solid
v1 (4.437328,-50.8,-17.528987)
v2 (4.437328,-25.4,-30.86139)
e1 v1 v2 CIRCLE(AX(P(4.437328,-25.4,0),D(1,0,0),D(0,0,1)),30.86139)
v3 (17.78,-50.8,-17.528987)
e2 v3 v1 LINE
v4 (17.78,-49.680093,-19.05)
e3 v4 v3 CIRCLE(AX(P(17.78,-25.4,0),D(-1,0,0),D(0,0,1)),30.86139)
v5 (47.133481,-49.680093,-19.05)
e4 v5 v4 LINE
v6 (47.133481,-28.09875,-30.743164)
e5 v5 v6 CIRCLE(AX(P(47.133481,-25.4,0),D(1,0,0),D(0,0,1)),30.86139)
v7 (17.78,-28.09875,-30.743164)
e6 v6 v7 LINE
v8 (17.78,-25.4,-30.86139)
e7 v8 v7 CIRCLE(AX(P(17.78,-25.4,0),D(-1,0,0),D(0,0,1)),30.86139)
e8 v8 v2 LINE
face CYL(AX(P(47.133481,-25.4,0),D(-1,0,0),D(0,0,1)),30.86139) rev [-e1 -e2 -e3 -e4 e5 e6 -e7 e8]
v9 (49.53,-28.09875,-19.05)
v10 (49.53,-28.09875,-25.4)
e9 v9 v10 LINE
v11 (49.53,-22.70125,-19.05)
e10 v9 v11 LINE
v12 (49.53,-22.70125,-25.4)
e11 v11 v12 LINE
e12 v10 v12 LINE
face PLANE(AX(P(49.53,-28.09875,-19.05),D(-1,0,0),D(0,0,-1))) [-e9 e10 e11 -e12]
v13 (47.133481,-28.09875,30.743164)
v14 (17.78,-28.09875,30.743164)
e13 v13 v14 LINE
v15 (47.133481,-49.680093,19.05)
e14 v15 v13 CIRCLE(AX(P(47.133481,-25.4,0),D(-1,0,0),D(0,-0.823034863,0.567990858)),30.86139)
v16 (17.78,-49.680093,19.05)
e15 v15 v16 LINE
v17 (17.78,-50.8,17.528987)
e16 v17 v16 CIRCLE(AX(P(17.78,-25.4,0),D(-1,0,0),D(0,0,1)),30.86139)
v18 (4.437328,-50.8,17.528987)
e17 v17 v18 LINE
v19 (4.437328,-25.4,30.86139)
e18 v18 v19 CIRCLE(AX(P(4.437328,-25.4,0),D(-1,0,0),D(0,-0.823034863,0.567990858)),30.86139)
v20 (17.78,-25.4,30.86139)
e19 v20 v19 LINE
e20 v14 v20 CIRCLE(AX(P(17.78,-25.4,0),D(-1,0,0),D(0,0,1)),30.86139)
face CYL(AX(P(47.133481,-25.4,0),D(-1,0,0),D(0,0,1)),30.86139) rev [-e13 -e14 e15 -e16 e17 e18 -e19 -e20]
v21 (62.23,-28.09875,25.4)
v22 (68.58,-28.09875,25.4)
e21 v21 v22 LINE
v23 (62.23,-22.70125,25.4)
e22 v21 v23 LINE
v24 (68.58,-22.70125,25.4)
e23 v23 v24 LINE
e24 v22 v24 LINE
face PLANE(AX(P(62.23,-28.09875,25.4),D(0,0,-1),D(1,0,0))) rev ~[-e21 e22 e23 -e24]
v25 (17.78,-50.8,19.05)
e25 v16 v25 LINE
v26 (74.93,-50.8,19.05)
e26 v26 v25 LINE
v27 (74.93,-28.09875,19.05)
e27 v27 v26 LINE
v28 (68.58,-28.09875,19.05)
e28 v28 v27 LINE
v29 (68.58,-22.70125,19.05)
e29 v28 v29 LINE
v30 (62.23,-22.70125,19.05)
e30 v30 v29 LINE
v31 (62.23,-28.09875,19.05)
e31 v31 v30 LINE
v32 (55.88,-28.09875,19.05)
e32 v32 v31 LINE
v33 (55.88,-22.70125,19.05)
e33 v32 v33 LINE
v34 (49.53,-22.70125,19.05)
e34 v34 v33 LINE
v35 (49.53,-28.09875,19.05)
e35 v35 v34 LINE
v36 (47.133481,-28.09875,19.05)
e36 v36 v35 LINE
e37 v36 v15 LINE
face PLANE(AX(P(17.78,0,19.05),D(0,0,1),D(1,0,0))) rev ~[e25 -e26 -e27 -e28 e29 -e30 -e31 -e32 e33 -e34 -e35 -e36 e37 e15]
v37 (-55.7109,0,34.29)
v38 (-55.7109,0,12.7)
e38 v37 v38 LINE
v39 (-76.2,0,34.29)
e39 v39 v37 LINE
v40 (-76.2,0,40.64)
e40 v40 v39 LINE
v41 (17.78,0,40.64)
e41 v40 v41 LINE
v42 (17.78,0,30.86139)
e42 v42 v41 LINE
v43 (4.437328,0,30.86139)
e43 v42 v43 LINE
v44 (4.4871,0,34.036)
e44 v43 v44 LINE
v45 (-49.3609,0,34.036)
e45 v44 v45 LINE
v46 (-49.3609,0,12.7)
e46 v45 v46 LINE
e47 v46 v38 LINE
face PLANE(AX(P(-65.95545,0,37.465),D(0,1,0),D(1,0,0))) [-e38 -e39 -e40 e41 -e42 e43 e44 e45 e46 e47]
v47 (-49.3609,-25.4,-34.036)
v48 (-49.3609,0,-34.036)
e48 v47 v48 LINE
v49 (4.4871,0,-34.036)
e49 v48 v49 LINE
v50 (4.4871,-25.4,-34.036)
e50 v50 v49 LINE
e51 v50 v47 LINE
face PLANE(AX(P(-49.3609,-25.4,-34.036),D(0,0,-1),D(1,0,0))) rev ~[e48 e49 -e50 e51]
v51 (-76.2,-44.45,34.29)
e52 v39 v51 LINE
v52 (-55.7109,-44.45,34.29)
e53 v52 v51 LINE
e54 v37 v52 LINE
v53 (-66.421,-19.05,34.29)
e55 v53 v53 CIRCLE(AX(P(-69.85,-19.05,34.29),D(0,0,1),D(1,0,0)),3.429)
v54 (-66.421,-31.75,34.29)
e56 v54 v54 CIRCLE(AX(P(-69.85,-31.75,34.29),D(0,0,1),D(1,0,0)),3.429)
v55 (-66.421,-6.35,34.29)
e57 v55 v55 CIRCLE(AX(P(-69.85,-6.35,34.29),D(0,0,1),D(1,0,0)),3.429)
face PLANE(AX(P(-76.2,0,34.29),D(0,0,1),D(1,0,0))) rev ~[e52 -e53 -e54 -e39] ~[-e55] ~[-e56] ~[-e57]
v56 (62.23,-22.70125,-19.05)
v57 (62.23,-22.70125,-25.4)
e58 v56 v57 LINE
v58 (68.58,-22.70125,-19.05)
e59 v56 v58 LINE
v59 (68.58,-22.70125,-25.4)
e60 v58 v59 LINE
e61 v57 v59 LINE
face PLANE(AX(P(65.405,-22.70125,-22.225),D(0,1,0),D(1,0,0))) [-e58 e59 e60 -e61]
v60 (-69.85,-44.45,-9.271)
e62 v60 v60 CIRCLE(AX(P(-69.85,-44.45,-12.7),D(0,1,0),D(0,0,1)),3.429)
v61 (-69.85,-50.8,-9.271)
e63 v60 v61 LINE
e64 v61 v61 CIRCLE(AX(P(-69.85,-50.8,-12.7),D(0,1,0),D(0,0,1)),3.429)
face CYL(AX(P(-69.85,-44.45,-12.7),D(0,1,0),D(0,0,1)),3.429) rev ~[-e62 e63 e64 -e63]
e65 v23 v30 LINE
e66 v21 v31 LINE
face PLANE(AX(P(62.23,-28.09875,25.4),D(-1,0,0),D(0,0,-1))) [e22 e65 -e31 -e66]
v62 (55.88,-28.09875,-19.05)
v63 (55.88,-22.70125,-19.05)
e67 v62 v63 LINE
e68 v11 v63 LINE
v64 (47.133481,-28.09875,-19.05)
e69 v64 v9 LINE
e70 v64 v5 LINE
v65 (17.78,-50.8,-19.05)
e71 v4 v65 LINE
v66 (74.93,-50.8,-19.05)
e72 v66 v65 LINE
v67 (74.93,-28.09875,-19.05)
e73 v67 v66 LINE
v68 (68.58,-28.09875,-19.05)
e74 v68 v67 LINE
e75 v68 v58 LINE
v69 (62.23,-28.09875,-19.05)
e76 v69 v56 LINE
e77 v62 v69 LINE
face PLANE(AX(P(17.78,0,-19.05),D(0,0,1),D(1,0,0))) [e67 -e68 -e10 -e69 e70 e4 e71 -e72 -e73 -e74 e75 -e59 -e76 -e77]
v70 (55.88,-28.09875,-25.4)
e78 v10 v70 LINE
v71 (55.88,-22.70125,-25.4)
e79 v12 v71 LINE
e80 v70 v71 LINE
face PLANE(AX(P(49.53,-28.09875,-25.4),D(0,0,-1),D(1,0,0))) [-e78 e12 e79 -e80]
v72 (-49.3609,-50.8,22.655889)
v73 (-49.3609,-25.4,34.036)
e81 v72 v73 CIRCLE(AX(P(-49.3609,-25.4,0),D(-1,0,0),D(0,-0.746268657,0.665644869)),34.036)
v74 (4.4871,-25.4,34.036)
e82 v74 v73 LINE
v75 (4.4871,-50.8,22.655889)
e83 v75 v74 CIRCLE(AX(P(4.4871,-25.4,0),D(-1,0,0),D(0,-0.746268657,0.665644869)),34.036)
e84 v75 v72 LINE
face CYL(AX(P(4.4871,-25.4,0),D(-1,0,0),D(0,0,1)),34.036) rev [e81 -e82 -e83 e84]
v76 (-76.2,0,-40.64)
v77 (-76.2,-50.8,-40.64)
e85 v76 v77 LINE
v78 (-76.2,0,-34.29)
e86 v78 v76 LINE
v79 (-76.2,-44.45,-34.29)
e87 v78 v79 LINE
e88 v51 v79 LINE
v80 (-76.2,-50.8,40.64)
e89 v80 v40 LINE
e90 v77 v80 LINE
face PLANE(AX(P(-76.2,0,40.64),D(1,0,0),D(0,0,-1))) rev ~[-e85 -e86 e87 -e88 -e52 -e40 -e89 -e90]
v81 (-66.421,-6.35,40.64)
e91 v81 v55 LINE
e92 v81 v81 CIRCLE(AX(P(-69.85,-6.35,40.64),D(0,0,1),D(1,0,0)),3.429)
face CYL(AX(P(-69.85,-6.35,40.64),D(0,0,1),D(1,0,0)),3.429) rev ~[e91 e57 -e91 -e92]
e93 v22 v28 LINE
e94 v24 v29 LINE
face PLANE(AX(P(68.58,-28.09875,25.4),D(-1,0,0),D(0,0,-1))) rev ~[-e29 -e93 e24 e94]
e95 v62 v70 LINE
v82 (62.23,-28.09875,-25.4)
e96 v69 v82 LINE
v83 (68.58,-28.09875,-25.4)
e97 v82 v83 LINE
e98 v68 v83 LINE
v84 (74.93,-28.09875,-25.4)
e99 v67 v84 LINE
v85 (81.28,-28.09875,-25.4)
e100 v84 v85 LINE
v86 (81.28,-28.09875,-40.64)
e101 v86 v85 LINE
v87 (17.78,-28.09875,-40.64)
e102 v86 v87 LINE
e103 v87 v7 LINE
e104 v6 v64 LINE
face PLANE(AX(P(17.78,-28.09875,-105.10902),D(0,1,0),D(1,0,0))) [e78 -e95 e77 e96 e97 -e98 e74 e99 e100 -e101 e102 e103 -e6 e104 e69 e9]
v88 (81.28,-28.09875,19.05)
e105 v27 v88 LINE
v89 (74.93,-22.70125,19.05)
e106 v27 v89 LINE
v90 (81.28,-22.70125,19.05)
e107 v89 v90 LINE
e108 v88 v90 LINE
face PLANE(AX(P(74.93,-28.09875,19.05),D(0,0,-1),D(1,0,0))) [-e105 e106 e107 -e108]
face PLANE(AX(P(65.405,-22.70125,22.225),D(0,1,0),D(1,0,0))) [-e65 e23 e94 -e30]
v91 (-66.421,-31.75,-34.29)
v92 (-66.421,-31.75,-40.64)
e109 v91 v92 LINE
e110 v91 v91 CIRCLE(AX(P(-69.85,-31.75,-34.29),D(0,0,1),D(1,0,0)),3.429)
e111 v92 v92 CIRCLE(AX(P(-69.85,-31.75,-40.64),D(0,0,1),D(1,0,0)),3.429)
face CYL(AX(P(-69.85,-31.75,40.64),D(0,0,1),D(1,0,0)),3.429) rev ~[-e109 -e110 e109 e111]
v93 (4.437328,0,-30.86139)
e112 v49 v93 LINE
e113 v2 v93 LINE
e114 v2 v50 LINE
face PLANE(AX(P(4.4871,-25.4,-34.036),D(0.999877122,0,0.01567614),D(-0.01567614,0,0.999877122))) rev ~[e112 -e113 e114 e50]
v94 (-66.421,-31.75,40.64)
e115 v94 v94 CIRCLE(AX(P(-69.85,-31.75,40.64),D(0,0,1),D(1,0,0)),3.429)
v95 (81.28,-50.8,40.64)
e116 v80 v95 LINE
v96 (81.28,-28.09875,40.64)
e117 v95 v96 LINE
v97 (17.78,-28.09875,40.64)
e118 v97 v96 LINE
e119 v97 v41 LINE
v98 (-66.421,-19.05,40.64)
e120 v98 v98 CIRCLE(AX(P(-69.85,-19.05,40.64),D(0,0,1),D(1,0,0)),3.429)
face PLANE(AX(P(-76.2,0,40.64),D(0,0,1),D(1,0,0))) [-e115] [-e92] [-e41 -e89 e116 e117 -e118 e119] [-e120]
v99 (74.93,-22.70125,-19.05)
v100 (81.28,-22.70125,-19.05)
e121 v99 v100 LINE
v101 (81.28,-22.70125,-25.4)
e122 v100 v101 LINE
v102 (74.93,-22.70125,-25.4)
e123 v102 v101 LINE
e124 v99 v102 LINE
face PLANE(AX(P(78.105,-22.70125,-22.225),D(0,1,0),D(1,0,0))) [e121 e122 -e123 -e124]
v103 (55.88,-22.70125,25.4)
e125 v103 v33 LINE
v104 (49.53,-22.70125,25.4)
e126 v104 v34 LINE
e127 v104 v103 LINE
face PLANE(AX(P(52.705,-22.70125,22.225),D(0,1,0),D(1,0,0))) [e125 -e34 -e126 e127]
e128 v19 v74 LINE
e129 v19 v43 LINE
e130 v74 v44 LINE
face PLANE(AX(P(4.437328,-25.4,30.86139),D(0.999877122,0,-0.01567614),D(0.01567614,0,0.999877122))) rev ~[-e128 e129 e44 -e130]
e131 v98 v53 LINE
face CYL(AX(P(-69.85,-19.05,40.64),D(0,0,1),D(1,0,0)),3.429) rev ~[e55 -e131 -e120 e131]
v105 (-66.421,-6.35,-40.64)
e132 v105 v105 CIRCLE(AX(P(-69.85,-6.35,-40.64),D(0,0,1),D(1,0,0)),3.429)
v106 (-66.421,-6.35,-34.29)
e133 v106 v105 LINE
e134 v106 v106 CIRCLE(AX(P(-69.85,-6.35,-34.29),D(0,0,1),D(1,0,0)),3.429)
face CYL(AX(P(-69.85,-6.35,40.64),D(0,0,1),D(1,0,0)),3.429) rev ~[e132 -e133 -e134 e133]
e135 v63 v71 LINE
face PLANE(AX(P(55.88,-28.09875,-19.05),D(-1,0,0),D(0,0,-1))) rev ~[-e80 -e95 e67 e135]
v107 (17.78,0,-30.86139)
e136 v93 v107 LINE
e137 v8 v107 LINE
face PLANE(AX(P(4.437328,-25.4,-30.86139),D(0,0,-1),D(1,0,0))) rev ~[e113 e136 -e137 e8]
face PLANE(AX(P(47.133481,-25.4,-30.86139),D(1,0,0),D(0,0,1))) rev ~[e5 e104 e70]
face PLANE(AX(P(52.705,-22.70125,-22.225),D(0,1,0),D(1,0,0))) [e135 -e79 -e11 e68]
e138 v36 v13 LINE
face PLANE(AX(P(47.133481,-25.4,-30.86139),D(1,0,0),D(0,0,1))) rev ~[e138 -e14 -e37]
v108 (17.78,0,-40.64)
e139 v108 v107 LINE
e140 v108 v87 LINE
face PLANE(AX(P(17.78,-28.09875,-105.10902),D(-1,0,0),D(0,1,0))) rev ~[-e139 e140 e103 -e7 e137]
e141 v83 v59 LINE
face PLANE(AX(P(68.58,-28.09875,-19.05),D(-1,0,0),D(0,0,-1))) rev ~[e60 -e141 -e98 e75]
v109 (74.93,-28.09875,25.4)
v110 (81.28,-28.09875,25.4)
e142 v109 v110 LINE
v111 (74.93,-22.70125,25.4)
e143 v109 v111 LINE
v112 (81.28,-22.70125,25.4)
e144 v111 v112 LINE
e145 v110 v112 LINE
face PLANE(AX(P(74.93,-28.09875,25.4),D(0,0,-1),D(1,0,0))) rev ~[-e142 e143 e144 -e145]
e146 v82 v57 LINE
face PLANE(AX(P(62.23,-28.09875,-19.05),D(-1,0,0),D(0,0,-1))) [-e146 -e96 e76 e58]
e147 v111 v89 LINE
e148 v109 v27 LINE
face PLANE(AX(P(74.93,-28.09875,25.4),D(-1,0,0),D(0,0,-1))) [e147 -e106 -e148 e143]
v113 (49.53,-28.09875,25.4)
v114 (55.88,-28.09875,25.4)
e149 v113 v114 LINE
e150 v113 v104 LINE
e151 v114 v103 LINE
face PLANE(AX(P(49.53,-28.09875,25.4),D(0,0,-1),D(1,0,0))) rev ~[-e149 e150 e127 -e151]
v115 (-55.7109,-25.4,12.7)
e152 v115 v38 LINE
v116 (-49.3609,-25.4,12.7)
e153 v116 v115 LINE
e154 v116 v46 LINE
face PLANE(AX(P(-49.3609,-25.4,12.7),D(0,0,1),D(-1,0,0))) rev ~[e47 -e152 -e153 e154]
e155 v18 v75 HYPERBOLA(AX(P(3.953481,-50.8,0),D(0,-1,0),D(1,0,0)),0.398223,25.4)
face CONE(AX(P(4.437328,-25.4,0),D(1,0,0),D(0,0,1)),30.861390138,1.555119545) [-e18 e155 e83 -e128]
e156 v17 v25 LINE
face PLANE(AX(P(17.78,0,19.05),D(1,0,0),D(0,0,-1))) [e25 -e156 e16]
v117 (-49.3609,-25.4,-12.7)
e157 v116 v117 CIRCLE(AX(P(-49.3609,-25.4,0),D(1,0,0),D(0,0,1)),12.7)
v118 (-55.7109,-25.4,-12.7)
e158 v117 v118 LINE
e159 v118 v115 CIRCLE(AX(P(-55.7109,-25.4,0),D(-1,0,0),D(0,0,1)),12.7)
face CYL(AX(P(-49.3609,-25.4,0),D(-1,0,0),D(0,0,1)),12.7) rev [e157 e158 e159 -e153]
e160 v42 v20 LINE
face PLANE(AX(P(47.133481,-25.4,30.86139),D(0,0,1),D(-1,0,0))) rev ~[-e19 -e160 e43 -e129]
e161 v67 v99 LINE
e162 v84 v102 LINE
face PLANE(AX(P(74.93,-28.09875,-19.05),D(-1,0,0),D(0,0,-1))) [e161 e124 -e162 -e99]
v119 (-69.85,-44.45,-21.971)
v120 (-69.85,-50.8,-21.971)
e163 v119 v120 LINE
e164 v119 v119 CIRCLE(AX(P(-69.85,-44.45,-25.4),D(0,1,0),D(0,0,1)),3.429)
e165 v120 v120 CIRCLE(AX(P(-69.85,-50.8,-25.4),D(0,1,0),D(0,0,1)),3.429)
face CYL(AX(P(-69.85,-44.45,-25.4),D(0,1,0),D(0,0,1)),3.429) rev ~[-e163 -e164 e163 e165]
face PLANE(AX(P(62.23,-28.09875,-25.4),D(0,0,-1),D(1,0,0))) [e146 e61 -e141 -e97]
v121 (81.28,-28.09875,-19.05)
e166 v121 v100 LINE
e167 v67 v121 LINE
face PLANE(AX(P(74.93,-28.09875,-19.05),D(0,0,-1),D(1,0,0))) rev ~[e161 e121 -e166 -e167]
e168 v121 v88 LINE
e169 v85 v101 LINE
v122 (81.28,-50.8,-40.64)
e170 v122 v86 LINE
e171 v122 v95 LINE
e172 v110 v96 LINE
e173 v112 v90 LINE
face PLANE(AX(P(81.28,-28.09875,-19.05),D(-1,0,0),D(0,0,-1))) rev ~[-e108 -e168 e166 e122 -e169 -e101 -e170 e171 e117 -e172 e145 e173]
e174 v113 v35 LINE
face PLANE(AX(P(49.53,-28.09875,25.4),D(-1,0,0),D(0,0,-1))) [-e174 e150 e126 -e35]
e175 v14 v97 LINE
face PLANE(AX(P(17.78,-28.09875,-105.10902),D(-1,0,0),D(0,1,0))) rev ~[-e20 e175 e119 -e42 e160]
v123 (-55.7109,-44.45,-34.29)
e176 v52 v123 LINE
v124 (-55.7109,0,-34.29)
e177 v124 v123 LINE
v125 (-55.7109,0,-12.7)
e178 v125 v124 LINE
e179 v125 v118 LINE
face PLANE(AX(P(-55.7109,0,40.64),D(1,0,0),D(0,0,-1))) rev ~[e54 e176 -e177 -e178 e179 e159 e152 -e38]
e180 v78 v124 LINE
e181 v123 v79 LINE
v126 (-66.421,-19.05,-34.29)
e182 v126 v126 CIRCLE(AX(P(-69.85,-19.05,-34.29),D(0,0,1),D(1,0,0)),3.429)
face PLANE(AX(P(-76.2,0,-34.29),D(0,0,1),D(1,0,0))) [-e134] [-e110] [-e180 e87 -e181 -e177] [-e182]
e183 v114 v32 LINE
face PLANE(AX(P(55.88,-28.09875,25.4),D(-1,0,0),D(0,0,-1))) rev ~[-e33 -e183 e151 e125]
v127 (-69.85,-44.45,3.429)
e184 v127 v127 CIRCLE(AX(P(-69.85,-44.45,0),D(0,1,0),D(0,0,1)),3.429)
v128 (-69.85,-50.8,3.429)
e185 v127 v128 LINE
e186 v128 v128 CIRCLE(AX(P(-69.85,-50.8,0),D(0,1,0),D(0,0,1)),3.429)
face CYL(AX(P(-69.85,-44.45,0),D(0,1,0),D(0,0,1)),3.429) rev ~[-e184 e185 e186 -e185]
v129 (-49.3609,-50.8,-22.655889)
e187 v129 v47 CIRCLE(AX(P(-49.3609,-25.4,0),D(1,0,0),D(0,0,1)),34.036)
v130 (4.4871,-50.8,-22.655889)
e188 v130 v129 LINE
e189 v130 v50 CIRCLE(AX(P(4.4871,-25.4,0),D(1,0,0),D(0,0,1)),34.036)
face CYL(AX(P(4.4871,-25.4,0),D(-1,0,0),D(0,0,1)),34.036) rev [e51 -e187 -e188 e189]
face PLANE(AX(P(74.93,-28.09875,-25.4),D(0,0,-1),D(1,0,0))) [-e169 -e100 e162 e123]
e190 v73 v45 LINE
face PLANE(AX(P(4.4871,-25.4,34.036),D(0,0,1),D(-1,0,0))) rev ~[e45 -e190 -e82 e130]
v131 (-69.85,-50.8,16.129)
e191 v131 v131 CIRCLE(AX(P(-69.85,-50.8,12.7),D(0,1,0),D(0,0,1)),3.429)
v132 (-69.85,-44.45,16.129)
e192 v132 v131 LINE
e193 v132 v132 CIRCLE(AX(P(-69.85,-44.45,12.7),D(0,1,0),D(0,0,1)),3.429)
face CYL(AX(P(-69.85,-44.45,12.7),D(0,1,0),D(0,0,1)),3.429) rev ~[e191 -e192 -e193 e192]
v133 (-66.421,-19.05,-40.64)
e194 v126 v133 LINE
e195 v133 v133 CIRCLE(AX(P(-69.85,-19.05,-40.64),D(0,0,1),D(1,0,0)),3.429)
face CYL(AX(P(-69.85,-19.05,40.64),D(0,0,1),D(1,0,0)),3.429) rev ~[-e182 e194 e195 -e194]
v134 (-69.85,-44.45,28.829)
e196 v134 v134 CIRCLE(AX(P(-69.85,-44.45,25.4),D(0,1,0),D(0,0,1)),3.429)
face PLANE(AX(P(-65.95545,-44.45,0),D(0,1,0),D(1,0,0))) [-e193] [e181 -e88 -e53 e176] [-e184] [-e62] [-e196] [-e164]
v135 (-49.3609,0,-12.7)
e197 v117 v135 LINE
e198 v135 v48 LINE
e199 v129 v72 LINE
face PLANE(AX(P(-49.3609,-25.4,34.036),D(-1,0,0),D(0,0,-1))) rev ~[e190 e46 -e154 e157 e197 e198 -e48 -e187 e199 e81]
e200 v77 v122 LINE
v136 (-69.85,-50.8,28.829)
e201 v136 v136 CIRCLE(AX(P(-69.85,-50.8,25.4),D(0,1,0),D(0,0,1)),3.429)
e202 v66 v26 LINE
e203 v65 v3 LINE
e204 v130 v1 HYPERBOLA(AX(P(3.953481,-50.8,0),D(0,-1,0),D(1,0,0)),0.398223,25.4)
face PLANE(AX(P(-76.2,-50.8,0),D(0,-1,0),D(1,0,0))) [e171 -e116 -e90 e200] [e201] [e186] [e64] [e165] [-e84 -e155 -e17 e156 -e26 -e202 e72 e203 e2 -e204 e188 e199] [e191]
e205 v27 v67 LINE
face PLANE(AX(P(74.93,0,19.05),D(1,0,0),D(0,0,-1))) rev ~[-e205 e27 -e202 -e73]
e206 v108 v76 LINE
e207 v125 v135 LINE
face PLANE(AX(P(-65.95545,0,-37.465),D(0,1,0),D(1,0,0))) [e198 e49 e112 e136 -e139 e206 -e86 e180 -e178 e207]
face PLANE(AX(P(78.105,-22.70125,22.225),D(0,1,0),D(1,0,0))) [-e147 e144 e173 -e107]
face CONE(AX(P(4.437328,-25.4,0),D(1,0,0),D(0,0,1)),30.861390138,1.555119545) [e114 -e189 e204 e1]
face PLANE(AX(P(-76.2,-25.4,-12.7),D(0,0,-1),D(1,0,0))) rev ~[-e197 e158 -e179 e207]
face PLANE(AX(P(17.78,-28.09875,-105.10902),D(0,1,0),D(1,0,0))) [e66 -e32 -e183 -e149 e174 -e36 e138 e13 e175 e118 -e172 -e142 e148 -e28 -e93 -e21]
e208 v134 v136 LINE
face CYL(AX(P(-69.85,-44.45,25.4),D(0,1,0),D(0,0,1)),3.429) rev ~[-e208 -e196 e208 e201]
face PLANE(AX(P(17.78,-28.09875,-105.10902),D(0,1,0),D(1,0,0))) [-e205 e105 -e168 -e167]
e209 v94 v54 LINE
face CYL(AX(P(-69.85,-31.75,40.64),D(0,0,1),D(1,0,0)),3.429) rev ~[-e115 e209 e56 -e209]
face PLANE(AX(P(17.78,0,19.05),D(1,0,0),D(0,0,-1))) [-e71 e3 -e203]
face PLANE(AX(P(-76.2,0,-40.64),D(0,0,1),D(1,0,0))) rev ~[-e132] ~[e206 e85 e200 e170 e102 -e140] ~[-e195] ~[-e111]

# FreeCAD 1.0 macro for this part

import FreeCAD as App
import Part
import Sketcher
from FreeCAD import Vector
Q = App.Units.Quantity


def add_polygon(sketch, points):
    """Adds a closed chain of lines whose ends are joined by coincident constraints."""
    first, n = sketch.GeometryCount, len(points)
    for a, b in zip(points, points[1:] + points[:1]):
        sketch.addGeometry(Part.LineSegment(App.Vector(*a, 0), App.Vector(*b, 0)), False)
    for i in range(n):
        sketch.addConstraint(Sketcher.Constraint("Coincident", first + i, 2, first + (i + 1) % n, 1))

doc = App.newDocument("Part")
params = doc.addObject("Spreadsheet::Sheet", "Params")
for row, (alias, value) in enumerate([
    ("sketch1_height", "2 in"),
    ("sketch1_width", "6.2 in"),
    ("pad1_length", "3.2 in"),
    ("sketch2_width", "1 in"),
    ("sketch2_height", "0.5 in"),
    ("sketch2_width2", "2.12 in"),
    ("sketch2_height2", "0.84 in"),
    ("sketch2_height3", "0.39 in"),
    ("groove_angle", "360 deg"),
    ("sketch3_width", "1 in"),
    ("sketch3_height", "3.2 in"),
    ("sketch4_width", "1 in"),
    ("sketch4_width2", "6.2 in"),
    ("sketch4_height", "1.1 in"),
    ("sketch4_height2", "3.2 in"),
    ("sketch4_width3", "2.12 in"),
    ("pad2_length", "1 in"),
    ("sketch5_width", "2.5 in"),
    ("sketch6_height", "3.2 in"),
    ("pocket3_length", "1.75 in"),
    ("sketch7_diameter", "0.27 in"),
    ("sketch8_height", "1.5 in"),
    ("sketch8_width", "2.25 in"),
    ("sketch9_width", "0.25 in"),
    ("pad3_length", "0.2125 in"),
    ("sketch10_height", "0.25 in"),
    ("sketch11_height", "0.25 in"),
    ("sketch12_diameter", "0.27 in"),
], start=1):
    params.set(f"A{row}", alias)
    params.set(f"B{row}", "=" + value)
    params.setAlias(f"B{row}", alias)

body = doc.addObject("PartDesign::Body", "Body")

# Sketch on XY plane
sketch1 = doc.addObject("Sketcher::SketchObject", "Sketch")
body.addObject(sketch1)
sketch1.AttachmentSupport = (doc.XY_Plane, [""])
sketch1.MapMode = "FlatFace"
add_polygon(sketch1, [(-76, 0), (-76, -51), (81, -51), (81, 0)])  # lines 0-3
sketch1.addConstraint(Sketcher.Constraint("Vertical", 0))
sketch1.addConstraint(Sketcher.Constraint("Horizontal", 1))
sketch1.addConstraint(Sketcher.Constraint("Vertical", 2))
sketch1.addConstraint(Sketcher.Constraint("Horizontal", 3))
sketch1.addConstraint(Sketcher.Constraint("PointOnObject", 2, 2, -1))
sketch1.addConstraint(Sketcher.Constraint("DistanceY", 0, 2, 0, 1, Q("2 in")))
sketch1.addConstraint(Sketcher.Constraint("DistanceX", 1, 1, 1, 2, Q("6.2 in")))
sketch1.addConstraint(Sketcher.Constraint("DistanceX", 0, 2, -1, 1, Q("3 in")))
sketch1.setExpression("Constraints[9]", "Params.sketch1_height")
sketch1.setExpression("Constraints[10]", "Params.sketch1_width")
pad1 = doc.addObject("PartDesign::Pad", "Pad")
body.addObject(pad1)
pad1.Profile = sketch1
pad1.setExpression("Length", "Params.pad1_length")
pad1.Midplane = True

# Sketch on XY plane
sketch2 = doc.addObject("Sketcher::SketchObject", "Sketch001")
body.addObject(sketch2)
sketch2.AttachmentSupport = (doc.XY_Plane, [""])
sketch2.MapMode = "FlatFace"
add_polygon(sketch2, [(-49.4, 8.6), (-49.4, -12.7), (-76.2, -12.7), (-76.2, -25.4), (72.5, -25.4), (72.5, -15.5), (47.1, -15.5), (47.1, 5.5), (4.4, 5.5), (4.5, 8.6)])  # lines 0-9
sketch2.addGeometry(Part.LineSegment(Vector(-76.2, -25.4, 0), Vector(72.5, -25.4, 0)), True)  # axis
sketch2.addConstraint(Sketcher.Constraint("Vertical", 0))
sketch2.addConstraint(Sketcher.Constraint("Horizontal", 1))
sketch2.addConstraint(Sketcher.Constraint("Vertical", 2))
sketch2.addConstraint(Sketcher.Constraint("Horizontal", 3))
sketch2.addConstraint(Sketcher.Constraint("Vertical", 4))
sketch2.addConstraint(Sketcher.Constraint("Horizontal", 5))
sketch2.addConstraint(Sketcher.Constraint("Vertical", 6))
sketch2.addConstraint(Sketcher.Constraint("Horizontal", 7))
sketch2.addConstraint(Sketcher.Constraint("Horizontal", 9))
sketch2.addConstraint(Sketcher.Constraint("Horizontal", 10))
sketch2.addConstraint(Sketcher.Constraint("Coincident", 10, 1, 2, 2))
sketch2.addConstraint(Sketcher.Constraint("Vertical", 4, 2, 10, 2))
sketch2.addConstraint(Sketcher.Constraint("DistanceX", 5, 2, 5, 1, Q("1 in")))
sketch2.addConstraint(Sketcher.Constraint("DistanceY", 2, 2, 2, 1, Q("0.5 in")))
sketch2.addConstraint(Sketcher.Constraint("DistanceX", 1, 2, -1, 1, Q("3 in")))
sketch2.addConstraint(Sketcher.Constraint("DistanceY", 2, 2, -1, 1, Q("1 in")))
sketch2.addConstraint(Sketcher.Constraint("DistanceX", 9, 2, 9, 1, Q("2.12 in")))
sketch2.addConstraint(Sketcher.Constraint("DistanceY", 0, 2, 0, 1, Q("0.84 in")))
sketch2.addConstraint(Sketcher.Constraint("DistanceY", 4, 1, 4, 2, Q("0.39 in")))
sketch2.addConstraint(Sketcher.Constraint("Distance", 8, Q("0.125 in")))
sketch2.addConstraint(Sketcher.Constraint("DistanceX", 1, 2, 1, 1, 26.8391))
sketch2.addConstraint(Sketcher.Constraint("DistanceX", 3, 1, 3, 2, 148.733481))
sketch2.addConstraint(Sketcher.Constraint("DistanceY", 6, 1, 6, 2, 20.95539))
sketch2.setExpression("Constraints[22]", "Params.sketch2_width")
sketch2.setExpression("Constraints[23]", "Params.sketch2_height")
sketch2.setExpression("Constraints[26]", "Params.sketch2_width2")
sketch2.setExpression("Constraints[27]", "Params.sketch2_height2")
sketch2.setExpression("Constraints[28]", "Params.sketch2_height3")
groove = doc.addObject("PartDesign::Groove", "Groove")
body.addObject(groove)
groove.Profile = sketch2
groove.ReferenceAxis = (sketch2, ["Axis0"])
groove.setExpression("Angle", "Params.groove_angle")

# Sketch on YZ plane
sketch3 = doc.addObject("Sketcher::SketchObject", "Sketch002")
body.addObject(sketch3)
sketch3.AttachmentSupport = (doc.YZ_Plane, [""])
sketch3.MapMode = "FlatFace"
sketch3.AttachmentOffset = App.Placement(Vector(0, 0, 3.2 * 25.4), App.Rotation())
add_polygon(sketch3, [(0, 41), (-25, 41), (-25, -41), (0, -41)])  # lines 0-3
sketch3.addConstraint(Sketcher.Constraint("Horizontal", 0))
sketch3.addConstraint(Sketcher.Constraint("Vertical", 1))
sketch3.addConstraint(Sketcher.Constraint("Horizontal", 2))
sketch3.addConstraint(Sketcher.Constraint("Vertical", 3))
sketch3.addConstraint(Sketcher.Constraint("Symmetric", 2, 2, 3, 2, -1, 1))
sketch3.addConstraint(Sketcher.Constraint("DistanceX", 0, 2, 0, 1, Q("1 in")))
sketch3.addConstraint(Sketcher.Constraint("DistanceY", 1, 2, 1, 1, Q("3.2 in")))
sketch3.setExpression("Constraints[9]", "Params.sketch3_width")
sketch3.setExpression("Constraints[10]", "Params.sketch3_height")
pocket1 = doc.addObject("PartDesign::Pocket", "Pocket")
body.addObject(pocket1)
pocket1.Profile = sketch3
pocket1.Type = "ThroughAll"

# Sketch on XZ plane
sketch4 = doc.addObject("Sketcher::SketchObject", "Sketch003")
body.addObject(sketch4)
sketch4.AttachmentSupport = (doc.XZ_Plane, [""])
sketch4.MapMode = "FlatFace"
sketch4.AttachmentOffset = App.Placement(Vector(0, 0, 1 * 25.4), App.Rotation())
add_polygon(sketch4, [(-49.4, 12.7), (-76.2, 12.7), (-76.2, 40.6), (81.3, 40.6), (81.3, -40.6), (-76.2, -40.6), (-76.2, -12.7), (-49.4, -12.7), (-49.4, -34), (4.5, -34), (4.4, -30.9), (47.1, -30.9), (47.1, -9.9), (72.5, -9.9), (72.5, 9.9), (47.1, 9.9), (47.1, 30.9), (4.4, 30.9), (4.5, 34), (-49.4, 34)])  # lines 0-19
sketch4.addConstraint(Sketcher.Constraint("Horizontal", 0))
sketch4.addConstraint(Sketcher.Constraint("Vertical", 1))
sketch4.addConstraint(Sketcher.Constraint("Horizontal", 2))
sketch4.addConstraint(Sketcher.Constraint("Vertical", 3))
sketch4.addConstraint(Sketcher.Constraint("Horizontal", 4))
sketch4.addConstraint(Sketcher.Constraint("Vertical", 5))
sketch4.addConstraint(Sketcher.Constraint("Horizontal", 6))
sketch4.addConstraint(Sketcher.Constraint("Vertical", 7))
sketch4.addConstraint(Sketcher.Constraint("Horizontal", 8))
sketch4.addConstraint(Sketcher.Constraint("Horizontal", 10))
sketch4.addConstraint(Sketcher.Constraint("Vertical", 11))
sketch4.addConstraint(Sketcher.Constraint("Horizontal", 12))
sketch4.addConstraint(Sketcher.Constraint("Vertical", 13))
sketch4.addConstraint(Sketcher.Constraint("Horizontal", 14))
sketch4.addConstraint(Sketcher.Constraint("Vertical", 15))
sketch4.addConstraint(Sketcher.Constraint("Horizontal", 16))
sketch4.addConstraint(Sketcher.Constraint("Horizontal", 18))
sketch4.addConstraint(Sketcher.Constraint("Vertical", 19))
sketch4.addConstraint(Sketcher.Constraint("Symmetric", 1, 2, 4, 2, -1))
sketch4.addConstraint(Sketcher.Constraint("Symmetric", 11, 2, 14, 2, -1))
sketch4.addConstraint(Sketcher.Constraint("Symmetric", 9, 2, 16, 2, -1))
sketch4.addConstraint(Sketcher.Constraint("Symmetric", 8, 2, 17, 2, -1))
sketch4.addConstraint(Sketcher.Constraint("Symmetric", 6, 2, 19, 2, -1))
sketch4.addConstraint(Sketcher.Constraint("DistanceX", 12, 1, 12, 2, Q("1 in")))
sketch4.addConstraint(Sketcher.Constraint("DistanceX", 2, 1, 2, 2, Q("6.2 in")))
sketch4.addConstraint(Sketcher.Constraint("DistanceY", 1, 1, 1, 2, Q("1.1 in")))
sketch4.addConstraint(Sketcher.Constraint("DistanceY", 3, 2, 3, 1, Q("3.2 in")))
sketch4.addConstraint(Sketcher.Constraint("DistanceX", 0, 2, -1, 1, Q("3 in")))
sketch4.addConstraint(Sketcher.Constraint("DistanceX", 8, 1, 8, 2, Q("2.12 in")))
sketch4.addConstraint(Sketcher.Constraint("DistanceY", 7, 2, 7, 1, Q("0.84 in")))
sketch4.addConstraint(Sketcher.Constraint("DistanceY", 13, 1, 13, 2, Q("0.78 in")))
sketch4.addConstraint(Sketcher.Constraint("Distance", 9, Q("0.125 in")))
sketch4.addConstraint(Sketcher.Constraint("DistanceX", 0, 2, 0, 1, 26.8391))
sketch4.addConstraint(Sketcher.Constraint("DistanceY", 11, 1, 11, 2, 20.95539))
sketch4.addConstraint(Sketcher.Constraint("DistanceX", 10, 1, 10, 2, 42.696153))
sketch4.setExpression("Constraints[43]", "Params.sketch4_width")
sketch4.setExpression("Constraints[44]", "Params.sketch4_width2")
sketch4.setExpression("Constraints[45]", "Params.sketch4_height")
sketch4.setExpression("Constraints[46]", "Params.sketch4_height2")
sketch4.setExpression("Constraints[48]", "Params.sketch4_width3")
pad2 = doc.addObject("PartDesign::Pad", "Pad001")
body.addObject(pad2)
pad2.Profile = sketch4
pad2.setExpression("Length", "Params.pad2_length")
pad2.Reversed = True

# Sketch on XY plane
sketch5 = doc.addObject("Sketcher::SketchObject", "Sketch004")
body.addObject(sketch5)
sketch5.AttachmentSupport = (doc.XY_Plane, [""])
sketch5.MapMode = "FlatFace"
add_polygon(sketch5, [(18, 0), (18, -28), (81, -28), (81, 0)])  # lines 0-3
sketch5.addConstraint(Sketcher.Constraint("Vertical", 0))
sketch5.addConstraint(Sketcher.Constraint("Horizontal", 1))
sketch5.addConstraint(Sketcher.Constraint("Vertical", 2))
sketch5.addConstraint(Sketcher.Constraint("Horizontal", 3))
sketch5.addConstraint(Sketcher.Constraint("PointOnObject", 2, 2, -1))
sketch5.addConstraint(Sketcher.Constraint("DistanceX", 1, 1, 1, 2, Q("2.5 in")))
sketch5.addConstraint(Sketcher.Constraint("DistanceX", -1, 1, 0, 2, Q("0.7 in")))
sketch5.addConstraint(Sketcher.Constraint("DistanceY", 0, 2, 0, 1, 28.09875))
sketch5.setExpression("Constraints[9]", "Params.sketch5_width")
pocket2 = doc.addObject("PartDesign::Pocket", "Pocket001")
body.addObject(pocket2)
pocket2.Profile = sketch5
pocket2.Type = "ThroughAll"
pocket2.Midplane = True

# Sketch on XZ plane
sketch6 = doc.addObject("Sketcher::SketchObject", "Sketch005")
body.addObject(sketch6)
sketch6.AttachmentSupport = (doc.XZ_Plane, [""])
sketch6.MapMode = "FlatFace"
add_polygon(sketch6, [(-76, -41), (-76, 41), (-56, 41), (-56, -41)])  # lines 0-3
sketch6.addConstraint(Sketcher.Constraint("Vertical", 0))
sketch6.addConstraint(Sketcher.Constraint("Horizontal", 1))
sketch6.addConstraint(Sketcher.Constraint("Vertical", 2))
sketch6.addConstraint(Sketcher.Constraint("Horizontal", 3))
sketch6.addConstraint(Sketcher.Constraint("DistanceY", 0, 1, 0, 2, Q("3.2 in")))
sketch6.addConstraint(Sketcher.Constraint("DistanceX", 0, 2, -1, 1, Q("3 in")))
sketch6.addConstraint(Sketcher.Constraint("DistanceY", -1, 1, 0, 2, Q("1.6 in")))
sketch6.addConstraint(Sketcher.Constraint("DistanceX", 1, 1, 1, 2, 20.4891))
sketch6.setExpression("Constraints[8]", "Params.sketch6_height")
pocket3 = doc.addObject("PartDesign::Pocket", "Pocket002")
body.addObject(pocket3)
pocket3.Profile = sketch6
pocket3.setExpression("Length", "Params.pocket3_length")
pocket3.Reversed = True

# Sketch on XZ plane
sketch7 = doc.addObject("Sketcher::SketchObject", "Sketch006")
body.addObject(sketch7)
sketch7.AttachmentSupport = (doc.XZ_Plane, [""])
sketch7.MapMode = "FlatFace"
sketch7.AttachmentOffset = App.Placement(Vector(0, 0, 1.75 * 25.4), App.Rotation())
sketch7.addGeometry(Part.Circle(Vector(-69.8, -25.4, 0), Vector(0, 0, 1), 3.4), False)
sketch7.addGeometry(Part.Circle(Vector(-69.8, -12.7, 0), Vector(0, 0, 1), 3.4), False)
sketch7.addGeometry(Part.Circle(Vector(-69.8, 0, 0), Vector(0, 0, 1), 3.4), False)
sketch7.addGeometry(Part.Circle(Vector(-69.8, 12.7, 0), Vector(0, 0, 1), 3.4), False)
sketch7.addGeometry(Part.Circle(Vector(-69.8, 25.4, 0), Vector(0, 0, 1), 3.4), False)
sketch7.addConstraint(Sketcher.Constraint("Equal", 0, 1))
sketch7.addConstraint(Sketcher.Constraint("Equal", 1, 2))
sketch7.addConstraint(Sketcher.Constraint("Equal", 2, 3))
sketch7.addConstraint(Sketcher.Constraint("Equal", 3, 4))
sketch7.addConstraint(Sketcher.Constraint("Symmetric", 1, 3, 3, 3, -1))
sketch7.addConstraint(Sketcher.Constraint("Symmetric", 0, 3, 4, 3, -1))
sketch7.addConstraint(Sketcher.Constraint("PointOnObject", 2, 3, -1))
sketch7.addConstraint(Sketcher.Constraint("Vertical", 0, 3, 1, 3))
sketch7.addConstraint(Sketcher.Constraint("Vertical", 1, 3, 2, 3))
sketch7.addConstraint(Sketcher.Constraint("Diameter", 0, Q("0.27 in")))
sketch7.addConstraint(Sketcher.Constraint("DistanceY", 0, 3, -1, 1, Q("1 in")))
sketch7.addConstraint(Sketcher.Constraint("DistanceY", 1, 3, 3, 3, Q("1 in")))
sketch7.addConstraint(Sketcher.Constraint("DistanceX", 0, 3, -1, 1, Q("2.75 in")))
sketch7.setExpression("Constraints[9]", "Params.sketch7_diameter")
pocket4 = doc.addObject("PartDesign::Pocket", "Pocket003")
body.addObject(pocket4)
pocket4.Profile = sketch7
pocket4.Type = "ThroughAll"
pocket4.Reversed = True

# Sketch on XZ plane
sketch8 = doc.addObject("Sketcher::SketchObject", "Sketch007")
body.addObject(sketch8)
sketch8.AttachmentSupport = (doc.XZ_Plane, [""])
sketch8.MapMode = "FlatFace"
add_polygon(sketch8, [(18, -19), (18, 19), (75, 19), (75, -19)])  # lines 0-3
sketch8.addConstraint(Sketcher.Constraint("Vertical", 0))
sketch8.addConstraint(Sketcher.Constraint("Horizontal", 1))
sketch8.addConstraint(Sketcher.Constraint("Vertical", 2))
sketch8.addConstraint(Sketcher.Constraint("Horizontal", 3))
sketch8.addConstraint(Sketcher.Constraint("DistanceY", 0, 1, 0, 2, Q("1.5 in")))
sketch8.addConstraint(Sketcher.Constraint("DistanceX", 1, 1, 1, 2, Q("2.25 in")))
sketch8.addConstraint(Sketcher.Constraint("DistanceX", -1, 1, 0, 2, Q("0.7 in")))
sketch8.addConstraint(Sketcher.Constraint("DistanceY", -1, 1, 0, 2, Q("0.75 in")))
sketch8.setExpression("Constraints[8]", "Params.sketch8_height")
sketch8.setExpression("Constraints[9]", "Params.sketch8_width")
pocket5 = doc.addObject("PartDesign::Pocket", "Pocket004")
body.addObject(pocket5)
pocket5.Profile = sketch8
pocket5.Type = "ThroughAll"
pocket5.Reversed = True

# Sketch on XZ plane
sketch9 = doc.addObject("Sketcher::SketchObject", "Sketch008")
body.addObject(sketch9)
sketch9.AttachmentSupport = (doc.XZ_Plane, [""])
sketch9.MapMode = "FlatFace"
sketch9.AttachmentOffset = App.Placement(Vector(0, 0, 28.09875), App.Rotation())
add_polygon(sketch9, [(50, -25), (50, -19), (56, -19), (56, -25)])  # lines 0-3
add_polygon(sketch9, [(62, -25), (62, -19), (69, -19), (69, -25)])  # lines 4-7
add_polygon(sketch9, [(75, -25), (75, -19), (81, -19), (81, -25)])  # lines 8-11
add_polygon(sketch9, [(75, 19), (75, 25), (81, 25), (81, 19)])  # lines 12-15
add_polygon(sketch9, [(62, 19), (62, 25), (69, 25), (69, 19)])  # lines 16-19
add_polygon(sketch9, [(50, 19), (50, 25), (56, 25), (56, 19)])  # lines 20-23
sketch9.addConstraint(Sketcher.Constraint("Vertical", 0))
sketch9.addConstraint(Sketcher.Constraint("Horizontal", 1))
sketch9.addConstraint(Sketcher.Constraint("Vertical", 2))
sketch9.addConstraint(Sketcher.Constraint("Horizontal", 3))
sketch9.addConstraint(Sketcher.Constraint("Vertical", 4))
sketch9.addConstraint(Sketcher.Constraint("Horizontal", 5))
sketch9.addConstraint(Sketcher.Constraint("Vertical", 6))
sketch9.addConstraint(Sketcher.Constraint("Horizontal", 7))
sketch9.addConstraint(Sketcher.Constraint("Vertical", 8))
sketch9.addConstraint(Sketcher.Constraint("Horizontal", 9))
sketch9.addConstraint(Sketcher.Constraint("Vertical", 10))
sketch9.addConstraint(Sketcher.Constraint("Horizontal", 11))
sketch9.addConstraint(Sketcher.Constraint("Vertical", 12))
sketch9.addConstraint(Sketcher.Constraint("Horizontal", 13))
sketch9.addConstraint(Sketcher.Constraint("Vertical", 14))
sketch9.addConstraint(Sketcher.Constraint("Horizontal", 15))
sketch9.addConstraint(Sketcher.Constraint("Vertical", 16))
sketch9.addConstraint(Sketcher.Constraint("Horizontal", 17))
sketch9.addConstraint(Sketcher.Constraint("Vertical", 18))
sketch9.addConstraint(Sketcher.Constraint("Horizontal", 19))
sketch9.addConstraint(Sketcher.Constraint("Vertical", 20))
sketch9.addConstraint(Sketcher.Constraint("Horizontal", 21))
sketch9.addConstraint(Sketcher.Constraint("Vertical", 22))
sketch9.addConstraint(Sketcher.Constraint("Horizontal", 23))
sketch9.addConstraint(Sketcher.Constraint("Symmetric", 11, 2, 12, 2, -1))
sketch9.addConstraint(Sketcher.Constraint("Symmetric", 9, 2, 14, 2, -1))
sketch9.addConstraint(Sketcher.Constraint("Symmetric", 7, 2, 16, 2, -1))
sketch9.addConstraint(Sketcher.Constraint("Symmetric", 5, 2, 18, 2, -1))
sketch9.addConstraint(Sketcher.Constraint("Symmetric", 3, 2, 20, 2, -1))
sketch9.addConstraint(Sketcher.Constraint("Symmetric", 1, 2, 22, 2, -1))
sketch9.addConstraint(Sketcher.Constraint("Horizontal", 1, 2, 4, 2))
sketch9.addConstraint(Sketcher.Constraint("Horizontal", 3, 2, 6, 2))
sketch9.addConstraint(Sketcher.Constraint("Horizontal", 5, 2, 8, 2))
sketch9.addConstraint(Sketcher.Constraint("Horizontal", 7, 2, 10, 2))
sketch9.addConstraint(Sketcher.Constraint("Equal", 3, 5))
sketch9.addConstraint(Sketcher.Constraint("Equal", 7, 9))
sketch9.addConstraint(Sketcher.Constraint("Equal", 23, 0))
sketch9.addConstraint(Sketcher.Constraint("DistanceY", 2, 2, -1, 1, Q("1 in")))
sketch9.addConstraint(Sketcher.Constraint("DistanceX", 20, 2, 12, 2, Q("1 in")))
sketch9.addConstraint(Sketcher.Constraint("DistanceX", 1, 1, 1, 2, Q("0.25 in")))
sketch9.addConstraint(Sketcher.Constraint("DistanceX", -1, 1, 1, 2, Q("2.2 in")))
sketch9.addConstraint(Sketcher.Constraint("DistanceX", -1, 1, 5, 2, Q("2.7 in")))
sketch9.setExpression("Constraints[63]", "Params.sketch9_width")
pad3 = doc.addObject("PartDesign::Pad", "Pad002")
body.addObject(pad3)
pad3.Profile = sketch9
pad3.setExpression("Length", "Params.pad3_length")
pad3.Reversed = True

# Sketch on XZ plane
sketch10 = doc.addObject("Sketcher::SketchObject", "Sketch009")
body.addObject(sketch10)
sketch10.AttachmentSupport = (doc.XZ_Plane, [""])
sketch10.MapMode = "FlatFace"
add_polygon(sketch10, [(-76, -41), (-76, -34), (-56, -34), (-56, -41)])  # lines 0-3
sketch10.addConstraint(Sketcher.Constraint("Vertical", 0))
sketch10.addConstraint(Sketcher.Constraint("Horizontal", 1))
sketch10.addConstraint(Sketcher.Constraint("Vertical", 2))
sketch10.addConstraint(Sketcher.Constraint("Horizontal", 3))
sketch10.addConstraint(Sketcher.Constraint("DistanceX", 0, 2, -1, 1, Q("3 in")))
sketch10.addConstraint(Sketcher.Constraint("DistanceY", 0, 1, 0, 2, Q("0.25 in")))
sketch10.addConstraint(Sketcher.Constraint("DistanceY", 2, 2, -1, 1, Q("1.6 in")))
sketch10.addConstraint(Sketcher.Constraint("DistanceX", 1, 1, 1, 2, 20.4891))
sketch10.setExpression("Constraints[9]", "Params.sketch10_height")
pad4 = doc.addObject("PartDesign::Pad", "Pad003")
body.addObject(pad4)
pad4.Profile = sketch10
pad4.Type = "UpToFirst"

# Sketch on XZ plane
sketch11 = doc.addObject("Sketcher::SketchObject", "Sketch010")
body.addObject(sketch11)
sketch11.AttachmentSupport = (doc.XZ_Plane, [""])
sketch11.MapMode = "FlatFace"
add_polygon(sketch11, [(-76, 34), (-76, 41), (-56, 41), (-56, 34)])  # lines 0-3
sketch11.addConstraint(Sketcher.Constraint("Vertical", 0))
sketch11.addConstraint(Sketcher.Constraint("Horizontal", 1))
sketch11.addConstraint(Sketcher.Constraint("Vertical", 2))
sketch11.addConstraint(Sketcher.Constraint("Horizontal", 3))
sketch11.addConstraint(Sketcher.Constraint("DistanceX", 0, 2, -1, 1, Q("3 in")))
sketch11.addConstraint(Sketcher.Constraint("DistanceY", 0, 1, 0, 2, Q("0.25 in")))
sketch11.addConstraint(Sketcher.Constraint("DistanceY", -1, 1, 0, 2, Q("1.6 in")))
sketch11.addConstraint(Sketcher.Constraint("DistanceX", 1, 1, 1, 2, 20.4891))
sketch11.setExpression("Constraints[9]", "Params.sketch11_height")
pad5 = doc.addObject("PartDesign::Pad", "Pad004")
body.addObject(pad5)
pad5.Profile = sketch11
pad5.Type = "UpToFirst"

# Sketch on XY plane
sketch12 = doc.addObject("Sketcher::SketchObject", "Sketch011")
body.addObject(sketch12)
sketch12.AttachmentSupport = (doc.XY_Plane, [""])
sketch12.MapMode = "FlatFace"
sketch12.AttachmentOffset = App.Placement(Vector(0, 0, 1.6 * 25.4), App.Rotation())
sketch12.addGeometry(Part.Circle(Vector(-69.8, -6.3, 0), Vector(0, 0, 1), 3.4), False)
sketch12.addGeometry(Part.Circle(Vector(-69.8, -19.1, 0), Vector(0, 0, 1), 3.4), False)
sketch12.addGeometry(Part.Circle(Vector(-69.8, -31.8, 0), Vector(0, 0, 1), 3.4), False)
sketch12.addConstraint(Sketcher.Constraint("Equal", 0, 1))
sketch12.addConstraint(Sketcher.Constraint("Equal", 1, 2))
sketch12.addConstraint(Sketcher.Constraint("Vertical", 0, 3, 1, 3))
sketch12.addConstraint(Sketcher.Constraint("Vertical", 1, 3, 2, 3))
sketch12.addConstraint(Sketcher.Constraint("Diameter", 0, Q("0.27 in")))
sketch12.addConstraint(Sketcher.Constraint("DistanceY", 2, 3, 0, 3, Q("1 in")))
sketch12.addConstraint(Sketcher.Constraint("DistanceY", 1, 3, 0, 3, Q("0.5 in")))
sketch12.addConstraint(Sketcher.Constraint("DistanceX", 0, 3, -1, 1, Q("2.75 in")))
sketch12.addConstraint(Sketcher.Constraint("DistanceY", 0, 3, -1, 1, Q("0.25 in")))
sketch12.setExpression("Constraints[4]", "Params.sketch12_diameter")
pocket6 = doc.addObject("PartDesign::Pocket", "Pocket005")
body.addObject(pocket6)
pocket6.Profile = sketch12
pocket6.Type = "ThroughAll"

doc.recompute()
